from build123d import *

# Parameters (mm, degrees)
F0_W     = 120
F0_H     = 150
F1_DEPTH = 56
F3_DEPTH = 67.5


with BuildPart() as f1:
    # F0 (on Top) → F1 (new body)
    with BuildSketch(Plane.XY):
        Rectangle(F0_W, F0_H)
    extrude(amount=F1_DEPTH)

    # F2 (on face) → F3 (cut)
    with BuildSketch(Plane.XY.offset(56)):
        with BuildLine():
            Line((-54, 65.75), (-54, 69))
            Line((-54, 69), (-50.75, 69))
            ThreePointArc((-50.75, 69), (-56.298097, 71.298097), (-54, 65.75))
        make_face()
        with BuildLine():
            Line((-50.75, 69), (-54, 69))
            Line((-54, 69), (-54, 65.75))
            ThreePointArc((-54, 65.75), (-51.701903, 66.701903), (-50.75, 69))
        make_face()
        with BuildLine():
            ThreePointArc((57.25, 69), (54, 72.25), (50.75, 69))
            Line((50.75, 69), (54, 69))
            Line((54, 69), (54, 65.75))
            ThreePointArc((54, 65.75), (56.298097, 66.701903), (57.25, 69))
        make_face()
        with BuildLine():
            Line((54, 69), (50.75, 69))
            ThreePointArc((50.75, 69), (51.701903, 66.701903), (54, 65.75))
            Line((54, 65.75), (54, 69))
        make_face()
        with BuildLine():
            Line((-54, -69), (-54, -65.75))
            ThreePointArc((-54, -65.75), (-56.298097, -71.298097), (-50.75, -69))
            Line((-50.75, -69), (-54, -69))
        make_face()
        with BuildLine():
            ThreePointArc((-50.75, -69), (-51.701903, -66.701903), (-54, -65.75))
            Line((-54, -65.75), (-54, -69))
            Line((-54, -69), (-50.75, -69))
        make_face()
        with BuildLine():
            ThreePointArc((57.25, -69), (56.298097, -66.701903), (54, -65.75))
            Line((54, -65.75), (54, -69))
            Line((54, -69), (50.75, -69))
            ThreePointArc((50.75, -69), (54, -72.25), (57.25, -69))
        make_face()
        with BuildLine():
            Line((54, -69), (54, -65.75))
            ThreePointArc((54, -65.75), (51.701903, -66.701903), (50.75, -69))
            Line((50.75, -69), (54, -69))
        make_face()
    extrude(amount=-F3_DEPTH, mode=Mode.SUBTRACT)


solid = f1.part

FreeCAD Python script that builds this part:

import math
import FreeCAD as App
import Part
import Sketcher

V = App.Vector

doc = App.newDocument("Part")
params = doc.addObject("Spreadsheet::Sheet", "Params")
for row, (alias, value) in enumerate([
    ("sketch1_width", "120 mm"),
    ("sketch1_height", "150 mm"),
    ("pad1_length", "56 mm"),
    ("sketch2_radius", "3.25 mm"),
    ("pocket1_length", "67.5 mm"),
], start=1):
    params.set(f"A{row}", alias)
    params.set(f"B{row}", "=" + value)
    params.setAlias(f"B{row}", alias)

body = doc.addObject("PartDesign::Body", "Body")

# Sketch on XY plane
sketch1 = body.newObject("Sketcher::SketchObject", "Sketch")
sketch1.AttachmentSupport = (doc.getObject("XY_Plane"), [""])
sketch1.MapMode = "FlatFace"
sketch1.addGeometry([
    Part.LineSegment(V(-60, 75, 0), V(-60, -75, 0)),
    Part.LineSegment(V(-60, -75, 0), V(60, -75, 0)),
    Part.LineSegment(V(60, -75, 0), V(60, 75, 0)),
    Part.LineSegment(V(60, 75, 0), V(-60, 75, 0)),
], False)
sketch1.addConstraint([
    Sketcher.Constraint("Coincident", 0, 2, 1, 1),
    Sketcher.Constraint("Coincident", 1, 2, 2, 1),
    Sketcher.Constraint("Coincident", 2, 2, 3, 1),
    Sketcher.Constraint("Coincident", 3, 2, 0, 1),
    Sketcher.Constraint("Vertical", 0),
    Sketcher.Constraint("Horizontal", 1),
    Sketcher.Constraint("Vertical", 2),
    Sketcher.Constraint("Horizontal", 3),
    Sketcher.Constraint("Symmetric", 0, 2, 2, 2, -1, 1),
    Sketcher.Constraint("DistanceX", 1, 1, 1, 2, 120.0),
    Sketcher.Constraint("DistanceY", 0, 2, 0, 1, 150.0),
])
sketch1.setExpression("Constraints[9]", "Params.sketch1_width")
sketch1.setExpression("Constraints[10]", "Params.sketch1_height")
pad1 = body.newObject("PartDesign::Pad", "Pad")
pad1.Profile = sketch1
pad1.setExpression("Length", "Params.pad1_length")

# Sketch on XY plane
sketch2 = body.newObject("Sketcher::SketchObject", "Sketch001")
sketch2.AttachmentSupport = (doc.getObject("XY_Plane"), [""])
sketch2.MapMode = "FlatFace"
sketch2.AttachmentOffset = App.Placement(V(0, 0, 56), App.Rotation())
sketch2.addGeometry([
    Part.ArcOfCircle(Part.Circle(V(-54, 69, 0), V(0, 0, 1), 3.25), math.radians(0), math.radians(270)),  # 0
    Part.ArcOfCircle(Part.Circle(V(-54, 69, 0), V(0, 0, 1), 3.25), math.radians(-89.999998), math.radians(-0.000002)),  # 1
    Part.ArcOfCircle(Part.Circle(V(54, 69, 0), V(0, 0, 1), 3.25), math.radians(0), math.radians(180)),  # 2
    Part.ArcOfCircle(Part.Circle(V(54, 69, 0), V(0, 0, 1), 3.25), math.radians(-179.999998), math.radians(-90.000002)),  # 3
    Part.ArcOfCircle(Part.Circle(V(54, 69, 0), V(0, 0, 1), 3.25), math.radians(-89.999998), math.radians(-0.000002)),  # 4
    Part.ArcOfCircle(Part.Circle(V(-54, -69, 0), V(0, 0, 1), 3.25), math.radians(90), math.radians(360)),  # 5
    Part.ArcOfCircle(Part.Circle(V(-54, -69, 0), V(0, 0, 1), 3.25), math.radians(0.000002), math.radians(89.999998)),  # 6
    Part.ArcOfCircle(Part.Circle(V(54, -69, 0), V(0, 0, 1), 3.25), math.radians(0.000002), math.radians(89.999998)),  # 7
    Part.ArcOfCircle(Part.Circle(V(54, -69, 0), V(0, 0, 1), 3.25), math.radians(90.000002), math.radians(179.999998)),  # 8
    Part.ArcOfCircle(Part.Circle(V(54, -69, 0), V(0, 0, 1), 3.25), math.radians(180), math.radians(360)),  # 9
], False)
sketch2.addConstraint([
    Sketcher.Constraint("Tangent", 0, 1, 1, 2),
    Sketcher.Constraint("Coincident", 1, 1, 0, 2),
    Sketcher.Constraint("Tangent", 2, 2, 3, 1),
    Sketcher.Constraint("Tangent", 3, 2, 4, 1),
    Sketcher.Constraint("Tangent", 4, 2, 2, 1),
    Sketcher.Constraint("Tangent", 5, 1, 6, 2),
    Sketcher.Constraint("Coincident", 6, 1, 5, 2),
    Sketcher.Constraint("Tangent", 7, 2, 8, 1),
    Sketcher.Constraint("Tangent", 8, 2, 9, 1),
    Sketcher.Constraint("Tangent", 9, 2, 7, 1),
    Sketcher.Constraint("Equal", 1, 2),
    Sketcher.Constraint("Equal", 4, 5),
    Sketcher.Constraint("Equal", 6, 7),
    Sketcher.Constraint("Symmetric", 2, 3, 5, 3, -1, 1),
    Sketcher.Constraint("Symmetric", 0, 3, 7, 3, -1, 1),
    Sketcher.Constraint("Symmetric", 0, 3, 2, 3, -2),
    Sketcher.Constraint("Horizontal", 4, 3, 0, 1),
    Sketcher.Constraint("Horizontal", 0, 1, 2, 2),
    Sketcher.Constraint("Horizontal", 2, 2, 4, 2),
    Sketcher.Constraint("Horizontal", 9, 3, 6, 1),
    Sketcher.Constraint("Horizontal", 6, 1, 8, 2),
    Sketcher.Constraint("Horizontal", 8, 2, 9, 2),
    Sketcher.Constraint("Vertical", 6, 3, 1, 1),
    Sketcher.Constraint("Vertical", 9, 3, 3, 2),
    Sketcher.Constraint("Vertical", 1, 1, 5, 1),
    Sketcher.Constraint("Vertical", 3, 2, 7, 2),
    Sketcher.Constraint("Radius", 0, 3.25),
    Sketcher.Constraint("DistanceX", 0, 3, -1, 1, 54.0),
    Sketcher.Constraint("DistanceY", -1, 1, 0, 3, 69.0),
])
sketch2.setExpression("Constraints[26]", "Params.sketch2_radius")
pocket1 = body.newObject("PartDesign::Pocket", "Pocket")
pocket1.Profile = sketch2
pocket1.setExpression("Length", "Params.pocket1_length")

doc.recompute()
